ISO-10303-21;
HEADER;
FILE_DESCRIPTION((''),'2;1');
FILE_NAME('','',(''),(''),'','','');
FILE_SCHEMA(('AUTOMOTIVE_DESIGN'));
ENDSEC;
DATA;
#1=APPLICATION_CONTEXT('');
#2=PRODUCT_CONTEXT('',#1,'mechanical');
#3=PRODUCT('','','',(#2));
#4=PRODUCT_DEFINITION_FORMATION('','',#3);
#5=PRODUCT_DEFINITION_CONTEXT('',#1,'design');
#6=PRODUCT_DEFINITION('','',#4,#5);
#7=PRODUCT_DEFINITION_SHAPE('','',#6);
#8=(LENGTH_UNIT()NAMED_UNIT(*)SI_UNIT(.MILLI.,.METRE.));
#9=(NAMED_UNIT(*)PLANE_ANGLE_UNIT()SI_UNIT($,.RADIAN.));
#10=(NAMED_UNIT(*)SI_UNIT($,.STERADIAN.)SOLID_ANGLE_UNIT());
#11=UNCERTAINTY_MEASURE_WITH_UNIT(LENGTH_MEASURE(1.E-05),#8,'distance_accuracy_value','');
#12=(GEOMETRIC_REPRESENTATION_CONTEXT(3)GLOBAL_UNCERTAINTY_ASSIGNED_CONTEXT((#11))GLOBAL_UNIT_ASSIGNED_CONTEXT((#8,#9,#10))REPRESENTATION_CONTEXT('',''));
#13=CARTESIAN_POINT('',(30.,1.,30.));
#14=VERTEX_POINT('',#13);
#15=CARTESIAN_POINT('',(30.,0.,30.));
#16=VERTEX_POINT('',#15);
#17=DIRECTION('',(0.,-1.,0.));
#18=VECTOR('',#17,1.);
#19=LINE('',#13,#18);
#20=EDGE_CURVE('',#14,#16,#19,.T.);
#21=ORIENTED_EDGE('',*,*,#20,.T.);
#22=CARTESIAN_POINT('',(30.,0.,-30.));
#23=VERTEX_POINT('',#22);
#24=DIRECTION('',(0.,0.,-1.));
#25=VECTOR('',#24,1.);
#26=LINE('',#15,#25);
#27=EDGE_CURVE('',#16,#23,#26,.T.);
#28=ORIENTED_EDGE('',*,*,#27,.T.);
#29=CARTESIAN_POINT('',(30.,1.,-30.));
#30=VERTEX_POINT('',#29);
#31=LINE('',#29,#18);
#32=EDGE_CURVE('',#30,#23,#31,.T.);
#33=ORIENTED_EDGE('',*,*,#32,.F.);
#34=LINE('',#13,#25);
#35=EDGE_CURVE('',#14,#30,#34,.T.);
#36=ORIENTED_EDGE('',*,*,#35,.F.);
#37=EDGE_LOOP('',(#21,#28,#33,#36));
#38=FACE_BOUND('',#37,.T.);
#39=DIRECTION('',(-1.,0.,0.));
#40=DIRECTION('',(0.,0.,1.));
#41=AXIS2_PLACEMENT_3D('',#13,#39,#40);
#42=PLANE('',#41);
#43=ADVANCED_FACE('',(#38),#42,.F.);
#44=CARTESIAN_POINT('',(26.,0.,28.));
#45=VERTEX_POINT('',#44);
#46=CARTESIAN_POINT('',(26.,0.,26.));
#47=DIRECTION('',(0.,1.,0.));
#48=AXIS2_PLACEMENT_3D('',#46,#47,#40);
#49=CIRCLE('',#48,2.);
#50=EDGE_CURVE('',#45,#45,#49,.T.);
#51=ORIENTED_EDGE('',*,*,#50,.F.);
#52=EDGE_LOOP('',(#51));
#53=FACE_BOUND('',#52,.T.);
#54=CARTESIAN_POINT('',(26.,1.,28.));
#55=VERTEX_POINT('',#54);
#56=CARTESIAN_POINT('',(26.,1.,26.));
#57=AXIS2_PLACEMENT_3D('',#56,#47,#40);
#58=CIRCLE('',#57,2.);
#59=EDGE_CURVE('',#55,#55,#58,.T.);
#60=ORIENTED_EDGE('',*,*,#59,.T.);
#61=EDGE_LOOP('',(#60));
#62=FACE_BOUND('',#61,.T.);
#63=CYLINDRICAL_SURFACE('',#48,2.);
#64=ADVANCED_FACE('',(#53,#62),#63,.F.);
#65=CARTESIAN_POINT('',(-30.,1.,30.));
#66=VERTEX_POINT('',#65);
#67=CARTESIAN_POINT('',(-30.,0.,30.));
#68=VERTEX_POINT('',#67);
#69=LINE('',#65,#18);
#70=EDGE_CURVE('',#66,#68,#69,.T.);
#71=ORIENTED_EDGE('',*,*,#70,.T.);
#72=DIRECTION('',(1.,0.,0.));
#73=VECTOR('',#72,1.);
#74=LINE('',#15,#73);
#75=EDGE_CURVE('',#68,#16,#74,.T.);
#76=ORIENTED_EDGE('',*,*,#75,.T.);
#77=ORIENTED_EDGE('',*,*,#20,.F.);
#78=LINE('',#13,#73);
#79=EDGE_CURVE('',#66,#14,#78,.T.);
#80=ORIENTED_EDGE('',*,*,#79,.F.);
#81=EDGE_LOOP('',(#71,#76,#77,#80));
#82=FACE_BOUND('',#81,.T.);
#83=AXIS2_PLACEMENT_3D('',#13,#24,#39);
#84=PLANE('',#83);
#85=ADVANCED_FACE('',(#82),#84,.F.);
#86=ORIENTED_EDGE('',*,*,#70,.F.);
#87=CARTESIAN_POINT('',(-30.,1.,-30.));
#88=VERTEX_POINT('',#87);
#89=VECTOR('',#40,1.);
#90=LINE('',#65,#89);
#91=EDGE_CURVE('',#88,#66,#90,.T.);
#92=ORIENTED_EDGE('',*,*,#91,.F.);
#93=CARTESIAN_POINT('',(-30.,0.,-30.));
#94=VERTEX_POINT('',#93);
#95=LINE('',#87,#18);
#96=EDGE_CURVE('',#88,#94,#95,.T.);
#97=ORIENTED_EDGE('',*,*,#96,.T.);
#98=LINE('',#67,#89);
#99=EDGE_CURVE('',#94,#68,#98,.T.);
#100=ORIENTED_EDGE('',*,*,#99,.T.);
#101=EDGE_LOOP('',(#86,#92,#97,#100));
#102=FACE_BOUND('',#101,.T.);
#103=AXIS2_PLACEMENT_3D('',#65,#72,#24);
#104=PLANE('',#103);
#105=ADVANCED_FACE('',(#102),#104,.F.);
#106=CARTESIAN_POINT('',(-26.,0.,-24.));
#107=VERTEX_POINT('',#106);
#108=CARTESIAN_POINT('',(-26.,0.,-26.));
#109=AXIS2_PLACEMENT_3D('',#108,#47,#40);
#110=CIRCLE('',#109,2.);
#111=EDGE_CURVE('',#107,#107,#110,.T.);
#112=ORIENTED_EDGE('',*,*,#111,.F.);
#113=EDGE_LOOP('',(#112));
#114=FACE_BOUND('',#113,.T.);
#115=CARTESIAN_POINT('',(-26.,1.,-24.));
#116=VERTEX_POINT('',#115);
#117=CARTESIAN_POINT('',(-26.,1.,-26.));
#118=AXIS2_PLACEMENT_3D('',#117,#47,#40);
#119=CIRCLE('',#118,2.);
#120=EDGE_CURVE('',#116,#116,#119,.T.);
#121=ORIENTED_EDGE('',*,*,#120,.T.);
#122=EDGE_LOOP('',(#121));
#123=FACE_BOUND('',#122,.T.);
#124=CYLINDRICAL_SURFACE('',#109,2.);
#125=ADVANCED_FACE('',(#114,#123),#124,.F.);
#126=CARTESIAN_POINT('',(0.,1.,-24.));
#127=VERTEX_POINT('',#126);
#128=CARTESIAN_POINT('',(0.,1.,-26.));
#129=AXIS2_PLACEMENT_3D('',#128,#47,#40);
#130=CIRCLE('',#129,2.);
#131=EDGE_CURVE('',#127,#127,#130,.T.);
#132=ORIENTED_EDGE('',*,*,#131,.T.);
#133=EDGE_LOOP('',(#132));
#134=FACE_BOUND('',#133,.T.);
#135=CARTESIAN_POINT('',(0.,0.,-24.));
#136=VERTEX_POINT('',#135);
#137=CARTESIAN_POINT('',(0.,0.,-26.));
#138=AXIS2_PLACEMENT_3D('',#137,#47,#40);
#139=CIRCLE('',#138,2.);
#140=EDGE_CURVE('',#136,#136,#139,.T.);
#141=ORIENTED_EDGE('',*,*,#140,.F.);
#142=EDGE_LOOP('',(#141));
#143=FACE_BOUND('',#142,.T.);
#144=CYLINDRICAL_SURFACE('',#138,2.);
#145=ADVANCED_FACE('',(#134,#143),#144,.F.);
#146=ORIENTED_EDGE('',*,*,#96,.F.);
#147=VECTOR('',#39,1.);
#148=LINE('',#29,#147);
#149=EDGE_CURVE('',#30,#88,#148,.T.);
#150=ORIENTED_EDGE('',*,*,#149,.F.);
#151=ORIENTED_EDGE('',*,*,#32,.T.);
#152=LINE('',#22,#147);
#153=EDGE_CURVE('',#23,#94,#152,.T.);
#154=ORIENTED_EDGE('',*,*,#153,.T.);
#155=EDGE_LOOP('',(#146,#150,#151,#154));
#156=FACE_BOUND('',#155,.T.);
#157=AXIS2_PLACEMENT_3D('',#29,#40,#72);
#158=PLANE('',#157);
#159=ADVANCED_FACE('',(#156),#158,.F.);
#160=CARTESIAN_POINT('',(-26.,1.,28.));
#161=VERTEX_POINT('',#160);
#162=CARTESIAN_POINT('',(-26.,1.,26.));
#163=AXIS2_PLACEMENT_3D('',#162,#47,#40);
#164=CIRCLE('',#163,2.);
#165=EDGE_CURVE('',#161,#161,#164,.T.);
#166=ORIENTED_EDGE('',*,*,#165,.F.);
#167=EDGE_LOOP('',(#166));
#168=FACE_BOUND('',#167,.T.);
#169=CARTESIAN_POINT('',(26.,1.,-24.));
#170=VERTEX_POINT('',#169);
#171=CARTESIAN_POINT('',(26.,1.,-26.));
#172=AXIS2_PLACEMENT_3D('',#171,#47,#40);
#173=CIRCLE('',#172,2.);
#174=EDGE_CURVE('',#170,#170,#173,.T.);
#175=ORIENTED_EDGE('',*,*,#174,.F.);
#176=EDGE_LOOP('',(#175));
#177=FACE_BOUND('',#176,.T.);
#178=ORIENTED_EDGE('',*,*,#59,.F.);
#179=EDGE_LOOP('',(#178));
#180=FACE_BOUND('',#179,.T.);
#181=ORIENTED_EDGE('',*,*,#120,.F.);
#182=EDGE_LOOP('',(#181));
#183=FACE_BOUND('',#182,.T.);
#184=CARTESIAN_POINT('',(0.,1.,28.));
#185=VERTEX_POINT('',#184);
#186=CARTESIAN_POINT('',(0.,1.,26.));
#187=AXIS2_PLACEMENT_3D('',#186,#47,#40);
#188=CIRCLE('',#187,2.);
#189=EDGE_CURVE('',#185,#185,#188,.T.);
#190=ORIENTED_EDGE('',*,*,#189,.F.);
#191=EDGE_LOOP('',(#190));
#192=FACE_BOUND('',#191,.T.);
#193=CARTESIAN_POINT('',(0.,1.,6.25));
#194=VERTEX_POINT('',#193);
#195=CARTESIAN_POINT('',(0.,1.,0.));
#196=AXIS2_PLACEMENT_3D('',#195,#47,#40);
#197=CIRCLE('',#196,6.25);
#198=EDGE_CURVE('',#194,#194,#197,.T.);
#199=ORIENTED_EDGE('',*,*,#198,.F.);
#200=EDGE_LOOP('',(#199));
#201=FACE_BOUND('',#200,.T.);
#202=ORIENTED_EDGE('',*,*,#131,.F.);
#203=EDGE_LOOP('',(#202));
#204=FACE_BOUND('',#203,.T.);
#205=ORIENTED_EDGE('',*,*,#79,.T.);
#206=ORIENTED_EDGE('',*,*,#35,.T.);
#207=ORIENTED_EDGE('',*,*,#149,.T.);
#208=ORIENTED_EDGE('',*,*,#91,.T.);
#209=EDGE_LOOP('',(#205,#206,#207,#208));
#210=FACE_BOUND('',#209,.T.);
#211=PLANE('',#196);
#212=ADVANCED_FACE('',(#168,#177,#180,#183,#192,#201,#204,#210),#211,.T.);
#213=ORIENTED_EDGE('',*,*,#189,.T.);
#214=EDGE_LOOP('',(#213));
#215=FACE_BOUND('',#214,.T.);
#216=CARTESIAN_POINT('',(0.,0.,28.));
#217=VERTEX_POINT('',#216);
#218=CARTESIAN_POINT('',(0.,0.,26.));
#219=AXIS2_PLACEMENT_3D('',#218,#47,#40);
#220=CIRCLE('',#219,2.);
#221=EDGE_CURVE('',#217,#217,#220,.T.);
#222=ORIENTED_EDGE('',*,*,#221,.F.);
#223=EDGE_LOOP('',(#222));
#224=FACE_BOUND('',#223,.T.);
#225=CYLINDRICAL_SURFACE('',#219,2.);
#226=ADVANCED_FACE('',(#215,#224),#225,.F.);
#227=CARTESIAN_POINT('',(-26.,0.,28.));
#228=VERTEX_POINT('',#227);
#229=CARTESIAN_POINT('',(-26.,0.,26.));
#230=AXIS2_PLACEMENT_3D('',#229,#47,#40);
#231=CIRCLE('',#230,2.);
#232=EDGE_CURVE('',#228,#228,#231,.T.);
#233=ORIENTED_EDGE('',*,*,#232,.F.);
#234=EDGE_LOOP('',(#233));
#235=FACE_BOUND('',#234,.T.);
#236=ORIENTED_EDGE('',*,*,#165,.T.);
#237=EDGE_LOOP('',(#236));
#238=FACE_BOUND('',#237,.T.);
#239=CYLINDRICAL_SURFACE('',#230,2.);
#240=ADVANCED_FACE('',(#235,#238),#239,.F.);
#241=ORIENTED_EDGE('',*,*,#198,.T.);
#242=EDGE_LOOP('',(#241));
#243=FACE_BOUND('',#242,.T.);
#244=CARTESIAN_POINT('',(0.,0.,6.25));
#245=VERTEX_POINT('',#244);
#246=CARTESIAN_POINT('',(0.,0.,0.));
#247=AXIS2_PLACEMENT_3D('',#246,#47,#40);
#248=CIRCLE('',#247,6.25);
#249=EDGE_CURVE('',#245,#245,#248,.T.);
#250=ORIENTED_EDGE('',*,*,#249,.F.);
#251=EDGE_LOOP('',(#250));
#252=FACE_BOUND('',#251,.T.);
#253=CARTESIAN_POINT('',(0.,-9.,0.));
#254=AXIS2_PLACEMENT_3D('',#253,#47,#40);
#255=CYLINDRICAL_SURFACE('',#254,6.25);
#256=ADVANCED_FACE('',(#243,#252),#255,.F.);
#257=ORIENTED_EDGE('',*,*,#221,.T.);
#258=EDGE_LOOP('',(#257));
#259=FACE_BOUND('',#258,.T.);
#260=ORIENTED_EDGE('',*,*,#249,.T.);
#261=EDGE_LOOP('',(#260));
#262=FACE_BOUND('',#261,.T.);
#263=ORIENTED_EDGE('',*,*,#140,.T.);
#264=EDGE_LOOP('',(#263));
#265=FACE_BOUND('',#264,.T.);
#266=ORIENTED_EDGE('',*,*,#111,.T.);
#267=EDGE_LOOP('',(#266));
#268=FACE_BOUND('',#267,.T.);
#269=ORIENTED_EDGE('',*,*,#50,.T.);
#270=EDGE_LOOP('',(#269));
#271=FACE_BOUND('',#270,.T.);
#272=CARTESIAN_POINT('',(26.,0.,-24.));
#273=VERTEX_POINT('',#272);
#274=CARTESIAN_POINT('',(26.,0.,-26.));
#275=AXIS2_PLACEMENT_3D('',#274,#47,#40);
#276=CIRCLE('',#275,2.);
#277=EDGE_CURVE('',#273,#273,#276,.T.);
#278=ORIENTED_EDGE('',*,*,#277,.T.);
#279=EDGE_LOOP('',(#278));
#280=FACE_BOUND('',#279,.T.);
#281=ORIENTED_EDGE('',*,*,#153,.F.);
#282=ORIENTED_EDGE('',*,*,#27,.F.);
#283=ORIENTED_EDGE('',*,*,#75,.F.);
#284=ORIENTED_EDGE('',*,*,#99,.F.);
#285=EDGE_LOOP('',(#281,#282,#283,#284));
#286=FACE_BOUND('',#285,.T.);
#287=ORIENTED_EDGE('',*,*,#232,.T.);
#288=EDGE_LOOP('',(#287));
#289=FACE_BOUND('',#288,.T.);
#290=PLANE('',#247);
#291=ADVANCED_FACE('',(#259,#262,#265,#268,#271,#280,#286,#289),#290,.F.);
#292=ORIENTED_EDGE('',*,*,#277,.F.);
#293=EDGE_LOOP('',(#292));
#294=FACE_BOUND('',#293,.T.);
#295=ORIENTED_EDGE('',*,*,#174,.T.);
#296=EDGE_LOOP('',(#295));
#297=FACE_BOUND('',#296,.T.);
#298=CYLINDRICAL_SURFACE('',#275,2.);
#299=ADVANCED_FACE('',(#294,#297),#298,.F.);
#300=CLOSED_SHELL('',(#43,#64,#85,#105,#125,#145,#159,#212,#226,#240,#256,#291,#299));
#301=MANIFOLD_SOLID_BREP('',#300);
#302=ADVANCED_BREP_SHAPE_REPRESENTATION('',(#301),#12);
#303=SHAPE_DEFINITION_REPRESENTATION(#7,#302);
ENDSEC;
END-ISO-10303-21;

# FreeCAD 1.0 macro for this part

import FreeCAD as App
import Part
import Sketcher

V = App.Vector

doc = App.newDocument("Part")
body = doc.addObject("PartDesign::Body", "Body")

sketch1 = body.newObject("Sketcher::SketchObject", "Sketch")
sketch1.AttachmentSupport = (doc.getObject("XZ_Plane"), [""])
sketch1.MapMode = "FlatFace"
sketch1.addGeometry([
    Part.LineSegment(V(-30, -30, 0), V(-30, 30, 0)),
    Part.LineSegment(V(-30, 30, 0), V(30, 30, 0)),
    Part.LineSegment(V(30, 30, 0), V(30, -30, 0)),
    Part.LineSegment(V(30, -30, 0), V(-30, -30, 0)),
], False)
sketch1.addConstraint([
    Sketcher.Constraint("Coincident", 0, 2, 1, 1),
    Sketcher.Constraint("Coincident", 1, 2, 2, 1),
    Sketcher.Constraint("Coincident", 2, 2, 3, 1),
    Sketcher.Constraint("Coincident", 3, 2, 0, 1),
    Sketcher.Constraint("Vertical", 0),
    Sketcher.Constraint("Horizontal", 1),
    Sketcher.Constraint("Vertical", 2),
    Sketcher.Constraint("Horizontal", 3),
    Sketcher.Constraint("Symmetric", 0, 2, 2, 2, -1, 1),
    Sketcher.Constraint("Equal", 3, 0),
    Sketcher.Constraint("DistanceX", 1, 1, 1, 2, 60.0),
])
pad1 = body.newObject("PartDesign::Pad", "Pad")
pad1.Profile = sketch1
pad1.Length = 1
pad1.Reversed = True

sketch2 = body.newObject("Sketcher::SketchObject", "Sketch001")
sketch2.AttachmentSupport = (doc.getObject("XZ_Plane"), [""])
sketch2.MapMode = "FlatFace"
sketch2.AttachmentOffset = App.Placement(V(0, 0, -1), App.Rotation())
sketch2.addGeometry([
    Part.Circle(V(-26, -26, 0), V(0, 0, 1), 2),
    Part.Circle(V(0, -26, 0), V(0, 0, 1), 2),
    Part.Circle(V(26, -26, 0), V(0, 0, 1), 2),
    Part.Circle(V(26, 26, 0), V(0, 0, 1), 2),
    Part.Circle(V(0, 26, 0), V(0, 0, 1), 2),
    Part.Circle(V(-26, 26, 0), V(0, 0, 1), 2),
], False)
sketch2.addConstraint([
    Sketcher.Constraint("Equal", 0, 1),
    Sketcher.Constraint("Equal", 1, 2),
    Sketcher.Constraint("Equal", 2, 3),
    Sketcher.Constraint("Equal", 3, 4),
    Sketcher.Constraint("Equal", 4, 5),
    Sketcher.Constraint("Symmetric", 0, 3, 3, 3, -1, 1),
    Sketcher.Constraint("Symmetric", 1, 3, 4, 3, -1, 1),
    Sketcher.Constraint("Symmetric", 2, 3, 5, 3, -1, 1),
    Sketcher.Constraint("Symmetric", 0, 3, 2, 3, -2),
    Sketcher.Constraint("PointOnObject", 1, 3, -2),
    Sketcher.Constraint("Horizontal", 0, 3, 1, 3),
    Sketcher.Constraint("Diameter", 0, 4.0),
    Sketcher.Constraint("DistanceX", 0, 3, -1, 1, 26.0),
    Sketcher.Constraint("DistanceY", 0, 3, -1, 1, 26.0),
])
pocket1 = body.newObject("PartDesign::Pocket", "Pocket")
pocket1.Profile = sketch2
pocket1.Type = "ThroughAll"
pocket1.Reversed = True

sketch3 = body.newObject("Sketcher::SketchObject", "Sketch002")
sketch3.AttachmentSupport = (doc.getObject("XZ_Plane"), [""])
sketch3.MapMode = "FlatFace"
sketch3.AttachmentOffset = App.Placement(V(0, 0, -1), App.Rotation())
sketch3.addGeometry(Part.Circle(V(0, 0, 0), V(0, 0, 1), 6), False)
sketch3.addConstraint([
    Sketcher.Constraint("Coincident", 0, 3, -1, 1),
    Sketcher.Constraint("Diameter", 0, 12.5),
])
pocket2 = body.newObject("PartDesign::Pocket", "Pocket001")
pocket2.Profile = sketch3
pocket2.Length = 10
pocket2.Reversed = True

doc.recompute()
